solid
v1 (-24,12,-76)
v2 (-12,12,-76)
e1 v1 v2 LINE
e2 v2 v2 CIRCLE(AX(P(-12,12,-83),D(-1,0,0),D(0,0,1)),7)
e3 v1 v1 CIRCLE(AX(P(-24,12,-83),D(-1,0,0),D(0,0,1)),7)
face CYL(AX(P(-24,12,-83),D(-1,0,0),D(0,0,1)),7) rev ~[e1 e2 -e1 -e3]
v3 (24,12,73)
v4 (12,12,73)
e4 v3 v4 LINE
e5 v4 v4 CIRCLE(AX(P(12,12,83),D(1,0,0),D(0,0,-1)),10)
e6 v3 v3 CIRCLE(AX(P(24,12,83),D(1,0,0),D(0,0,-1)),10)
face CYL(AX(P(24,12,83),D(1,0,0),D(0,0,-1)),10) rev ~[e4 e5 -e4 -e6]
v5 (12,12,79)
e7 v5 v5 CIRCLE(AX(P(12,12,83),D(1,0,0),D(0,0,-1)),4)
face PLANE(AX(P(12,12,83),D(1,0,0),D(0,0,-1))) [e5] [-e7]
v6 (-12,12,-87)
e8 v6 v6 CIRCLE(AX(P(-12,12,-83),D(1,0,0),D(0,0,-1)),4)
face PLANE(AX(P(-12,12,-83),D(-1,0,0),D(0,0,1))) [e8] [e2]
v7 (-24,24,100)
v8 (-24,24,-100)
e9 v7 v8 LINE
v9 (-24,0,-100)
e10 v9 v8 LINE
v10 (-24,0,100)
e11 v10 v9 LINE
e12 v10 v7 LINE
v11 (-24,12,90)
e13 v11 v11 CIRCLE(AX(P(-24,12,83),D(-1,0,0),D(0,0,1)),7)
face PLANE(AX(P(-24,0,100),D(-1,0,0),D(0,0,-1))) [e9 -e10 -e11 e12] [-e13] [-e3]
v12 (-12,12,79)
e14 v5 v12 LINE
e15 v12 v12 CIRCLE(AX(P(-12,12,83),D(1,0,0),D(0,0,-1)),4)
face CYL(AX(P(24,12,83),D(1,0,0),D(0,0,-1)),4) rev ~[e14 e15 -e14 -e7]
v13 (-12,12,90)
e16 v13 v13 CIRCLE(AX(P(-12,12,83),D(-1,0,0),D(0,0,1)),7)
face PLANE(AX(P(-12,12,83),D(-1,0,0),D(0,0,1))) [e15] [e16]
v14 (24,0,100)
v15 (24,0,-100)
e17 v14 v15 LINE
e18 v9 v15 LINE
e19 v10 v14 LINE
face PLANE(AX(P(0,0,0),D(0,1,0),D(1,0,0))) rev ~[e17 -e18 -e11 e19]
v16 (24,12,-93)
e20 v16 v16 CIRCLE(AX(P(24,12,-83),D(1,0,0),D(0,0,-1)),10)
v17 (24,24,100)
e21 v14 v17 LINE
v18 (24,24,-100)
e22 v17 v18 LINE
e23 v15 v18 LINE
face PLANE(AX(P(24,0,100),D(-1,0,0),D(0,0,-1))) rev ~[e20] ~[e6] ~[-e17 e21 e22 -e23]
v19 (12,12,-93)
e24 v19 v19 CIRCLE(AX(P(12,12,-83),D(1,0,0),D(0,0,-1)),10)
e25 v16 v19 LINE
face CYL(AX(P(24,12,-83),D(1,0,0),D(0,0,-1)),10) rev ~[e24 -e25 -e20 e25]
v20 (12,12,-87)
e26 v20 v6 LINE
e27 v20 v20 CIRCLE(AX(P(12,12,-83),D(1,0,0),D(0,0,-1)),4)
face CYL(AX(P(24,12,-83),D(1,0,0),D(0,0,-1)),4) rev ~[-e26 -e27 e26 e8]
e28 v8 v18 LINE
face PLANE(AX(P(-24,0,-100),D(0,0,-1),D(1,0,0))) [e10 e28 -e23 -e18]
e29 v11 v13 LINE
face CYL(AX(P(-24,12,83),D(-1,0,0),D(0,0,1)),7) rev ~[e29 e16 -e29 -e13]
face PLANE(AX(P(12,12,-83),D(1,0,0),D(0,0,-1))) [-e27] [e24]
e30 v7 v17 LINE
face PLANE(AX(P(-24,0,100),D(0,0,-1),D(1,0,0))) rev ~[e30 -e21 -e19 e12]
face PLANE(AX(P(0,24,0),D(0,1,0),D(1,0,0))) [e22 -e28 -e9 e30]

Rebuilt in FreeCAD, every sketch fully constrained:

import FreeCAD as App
import Part
import Sketcher
from FreeCAD import Vector
Q = App.Units.Quantity

doc = App.newDocument("Part")
body = doc.addObject("PartDesign::Body", "Body")

sketch1 = doc.addObject("Sketcher::SketchObject", "Sketch")
body.addObject(sketch1)
sketch1.AttachmentSupport = (doc.XZ_Plane, [""])
sketch1.MapMode = "FlatFace"
sketch1.addGeometry([
    Part.LineSegment(Vector(-24, -100, 0), Vector(-24, 100, 0)),
    Part.LineSegment(Vector(-24, 100, 0), Vector(24, 100, 0)),
    Part.LineSegment(Vector(24, 100, 0), Vector(24, -100, 0)),
    Part.LineSegment(Vector(24, -100, 0), Vector(-24, -100, 0)),
], False)
sketch1.addConstraint([
    Sketcher.Constraint("Coincident", 0, 2, 1, 1),
    Sketcher.Constraint("Coincident", 1, 2, 2, 1),
    Sketcher.Constraint("Coincident", 2, 2, 3, 1),
    Sketcher.Constraint("Coincident", 3, 2, 0, 1),
    Sketcher.Constraint("Vertical", 0),
    Sketcher.Constraint("Horizontal", 1),
    Sketcher.Constraint("Vertical", 2),
    Sketcher.Constraint("Horizontal", 3),
    Sketcher.Constraint("Symmetric", 0, 2, 2, 2, -1, 1),
    Sketcher.Constraint("DistanceX", 1, 1, 1, 2, Q("48 mm")),
    Sketcher.Constraint("DistanceY", 0, 1, 0, 2, Q("200 mm")),
])
pad1 = doc.addObject("PartDesign::Pad", "Pad")
body.addObject(pad1)
pad1.Profile = sketch1
pad1.Length = 24
pad1.Reversed = True

sketch2 = doc.addObject("Sketcher::SketchObject", "Sketch001")
body.addObject(sketch2)
sketch2.AttachmentSupport = (doc.YZ_Plane, [""])
sketch2.MapMode = "FlatFace"
sketch2.AttachmentOffset = App.Placement(Vector(0, 0, 24), App.Rotation())
sketch2.addGeometry([
    Part.Circle(Vector(12, 83, 0), Vector(0, 0, 1), 4),
    Part.Circle(Vector(12, -83, 0), Vector(0, 0, 1), 4),
], False)
sketch2.addConstraint([
    Sketcher.Constraint("Equal", 0, 1),
    Sketcher.Constraint("Symmetric", 0, 3, 1, 3, -1),
    Sketcher.Constraint("Diameter", 0, Q("8 mm")),
    Sketcher.Constraint("DistanceX", -1, 1, 0, 3, Q("12 mm")),
    Sketcher.Constraint("DistanceY", -1, 1, 0, 3, Q("83 mm")),
])
pocket1 = doc.addObject("PartDesign::Pocket", "Pocket")
body.addObject(pocket1)
pocket1.Profile = sketch2
pocket1.Type = "ThroughAll"

sketch3 = doc.addObject("Sketcher::SketchObject", "Sketch002")
body.addObject(sketch3)
sketch3.AttachmentSupport = (doc.YZ_Plane, [""])
sketch3.MapMode = "FlatFace"
sketch3.AttachmentOffset = App.Placement(Vector(0, 0, 24), App.Rotation())
sketch3.addGeometry([
    Part.Circle(Vector(12, 83, 0), Vector(0, 0, 1), 10),
    Part.Circle(Vector(12, -83, 0), Vector(0, 0, 1), 10),
], False)
sketch3.addConstraint([
    Sketcher.Constraint("Equal", 0, 1),
    Sketcher.Constraint("Symmetric", 0, 3, 1, 3, -1),
    Sketcher.Constraint("Diameter", 0, Q("20 mm")),
    Sketcher.Constraint("DistanceX", -1, 1, 0, 3, Q("12 mm")),
    Sketcher.Constraint("DistanceY", -1, 1, 0, 3, Q("83 mm")),
])
pocket2 = doc.addObject("PartDesign::Pocket", "Pocket001")
body.addObject(pocket2)
pocket2.Profile = sketch3
pocket2.Length = 12

sketch4 = doc.addObject("Sketcher::SketchObject", "Sketch003")
body.addObject(sketch4)
sketch4.AttachmentSupport = (doc.YZ_Plane, [""])
sketch4.MapMode = "FlatFace"
sketch4.AttachmentOffset = App.Placement(Vector(0, 0, -24), App.Rotation())
sketch4.addGeometry([
    Part.Circle(Vector(12, -83, 0), Vector(0, 0, 1), 7),
    Part.Circle(Vector(12, 83, 0), Vector(0, 0, 1), 7),
], False)
sketch4.addConstraint([
    Sketcher.Constraint("Equal", 0, 1),
    Sketcher.Constraint("Symmetric", 0, 3, 1, 3, -1),
    Sketcher.Constraint("Diameter", 0, Q("14 mm")),
    Sketcher.Constraint("DistanceX", -1, 1, 0, 3, Q("12 mm")),
    Sketcher.Constraint("DistanceY", 0, 3, -1, 1, Q("83 mm")),
])
pocket3 = doc.addObject("PartDesign::Pocket", "Pocket002")
body.addObject(pocket3)
pocket3.Profile = sketch4
pocket3.Length = 12
pocket3.Reversed = True

doc.recompute()
